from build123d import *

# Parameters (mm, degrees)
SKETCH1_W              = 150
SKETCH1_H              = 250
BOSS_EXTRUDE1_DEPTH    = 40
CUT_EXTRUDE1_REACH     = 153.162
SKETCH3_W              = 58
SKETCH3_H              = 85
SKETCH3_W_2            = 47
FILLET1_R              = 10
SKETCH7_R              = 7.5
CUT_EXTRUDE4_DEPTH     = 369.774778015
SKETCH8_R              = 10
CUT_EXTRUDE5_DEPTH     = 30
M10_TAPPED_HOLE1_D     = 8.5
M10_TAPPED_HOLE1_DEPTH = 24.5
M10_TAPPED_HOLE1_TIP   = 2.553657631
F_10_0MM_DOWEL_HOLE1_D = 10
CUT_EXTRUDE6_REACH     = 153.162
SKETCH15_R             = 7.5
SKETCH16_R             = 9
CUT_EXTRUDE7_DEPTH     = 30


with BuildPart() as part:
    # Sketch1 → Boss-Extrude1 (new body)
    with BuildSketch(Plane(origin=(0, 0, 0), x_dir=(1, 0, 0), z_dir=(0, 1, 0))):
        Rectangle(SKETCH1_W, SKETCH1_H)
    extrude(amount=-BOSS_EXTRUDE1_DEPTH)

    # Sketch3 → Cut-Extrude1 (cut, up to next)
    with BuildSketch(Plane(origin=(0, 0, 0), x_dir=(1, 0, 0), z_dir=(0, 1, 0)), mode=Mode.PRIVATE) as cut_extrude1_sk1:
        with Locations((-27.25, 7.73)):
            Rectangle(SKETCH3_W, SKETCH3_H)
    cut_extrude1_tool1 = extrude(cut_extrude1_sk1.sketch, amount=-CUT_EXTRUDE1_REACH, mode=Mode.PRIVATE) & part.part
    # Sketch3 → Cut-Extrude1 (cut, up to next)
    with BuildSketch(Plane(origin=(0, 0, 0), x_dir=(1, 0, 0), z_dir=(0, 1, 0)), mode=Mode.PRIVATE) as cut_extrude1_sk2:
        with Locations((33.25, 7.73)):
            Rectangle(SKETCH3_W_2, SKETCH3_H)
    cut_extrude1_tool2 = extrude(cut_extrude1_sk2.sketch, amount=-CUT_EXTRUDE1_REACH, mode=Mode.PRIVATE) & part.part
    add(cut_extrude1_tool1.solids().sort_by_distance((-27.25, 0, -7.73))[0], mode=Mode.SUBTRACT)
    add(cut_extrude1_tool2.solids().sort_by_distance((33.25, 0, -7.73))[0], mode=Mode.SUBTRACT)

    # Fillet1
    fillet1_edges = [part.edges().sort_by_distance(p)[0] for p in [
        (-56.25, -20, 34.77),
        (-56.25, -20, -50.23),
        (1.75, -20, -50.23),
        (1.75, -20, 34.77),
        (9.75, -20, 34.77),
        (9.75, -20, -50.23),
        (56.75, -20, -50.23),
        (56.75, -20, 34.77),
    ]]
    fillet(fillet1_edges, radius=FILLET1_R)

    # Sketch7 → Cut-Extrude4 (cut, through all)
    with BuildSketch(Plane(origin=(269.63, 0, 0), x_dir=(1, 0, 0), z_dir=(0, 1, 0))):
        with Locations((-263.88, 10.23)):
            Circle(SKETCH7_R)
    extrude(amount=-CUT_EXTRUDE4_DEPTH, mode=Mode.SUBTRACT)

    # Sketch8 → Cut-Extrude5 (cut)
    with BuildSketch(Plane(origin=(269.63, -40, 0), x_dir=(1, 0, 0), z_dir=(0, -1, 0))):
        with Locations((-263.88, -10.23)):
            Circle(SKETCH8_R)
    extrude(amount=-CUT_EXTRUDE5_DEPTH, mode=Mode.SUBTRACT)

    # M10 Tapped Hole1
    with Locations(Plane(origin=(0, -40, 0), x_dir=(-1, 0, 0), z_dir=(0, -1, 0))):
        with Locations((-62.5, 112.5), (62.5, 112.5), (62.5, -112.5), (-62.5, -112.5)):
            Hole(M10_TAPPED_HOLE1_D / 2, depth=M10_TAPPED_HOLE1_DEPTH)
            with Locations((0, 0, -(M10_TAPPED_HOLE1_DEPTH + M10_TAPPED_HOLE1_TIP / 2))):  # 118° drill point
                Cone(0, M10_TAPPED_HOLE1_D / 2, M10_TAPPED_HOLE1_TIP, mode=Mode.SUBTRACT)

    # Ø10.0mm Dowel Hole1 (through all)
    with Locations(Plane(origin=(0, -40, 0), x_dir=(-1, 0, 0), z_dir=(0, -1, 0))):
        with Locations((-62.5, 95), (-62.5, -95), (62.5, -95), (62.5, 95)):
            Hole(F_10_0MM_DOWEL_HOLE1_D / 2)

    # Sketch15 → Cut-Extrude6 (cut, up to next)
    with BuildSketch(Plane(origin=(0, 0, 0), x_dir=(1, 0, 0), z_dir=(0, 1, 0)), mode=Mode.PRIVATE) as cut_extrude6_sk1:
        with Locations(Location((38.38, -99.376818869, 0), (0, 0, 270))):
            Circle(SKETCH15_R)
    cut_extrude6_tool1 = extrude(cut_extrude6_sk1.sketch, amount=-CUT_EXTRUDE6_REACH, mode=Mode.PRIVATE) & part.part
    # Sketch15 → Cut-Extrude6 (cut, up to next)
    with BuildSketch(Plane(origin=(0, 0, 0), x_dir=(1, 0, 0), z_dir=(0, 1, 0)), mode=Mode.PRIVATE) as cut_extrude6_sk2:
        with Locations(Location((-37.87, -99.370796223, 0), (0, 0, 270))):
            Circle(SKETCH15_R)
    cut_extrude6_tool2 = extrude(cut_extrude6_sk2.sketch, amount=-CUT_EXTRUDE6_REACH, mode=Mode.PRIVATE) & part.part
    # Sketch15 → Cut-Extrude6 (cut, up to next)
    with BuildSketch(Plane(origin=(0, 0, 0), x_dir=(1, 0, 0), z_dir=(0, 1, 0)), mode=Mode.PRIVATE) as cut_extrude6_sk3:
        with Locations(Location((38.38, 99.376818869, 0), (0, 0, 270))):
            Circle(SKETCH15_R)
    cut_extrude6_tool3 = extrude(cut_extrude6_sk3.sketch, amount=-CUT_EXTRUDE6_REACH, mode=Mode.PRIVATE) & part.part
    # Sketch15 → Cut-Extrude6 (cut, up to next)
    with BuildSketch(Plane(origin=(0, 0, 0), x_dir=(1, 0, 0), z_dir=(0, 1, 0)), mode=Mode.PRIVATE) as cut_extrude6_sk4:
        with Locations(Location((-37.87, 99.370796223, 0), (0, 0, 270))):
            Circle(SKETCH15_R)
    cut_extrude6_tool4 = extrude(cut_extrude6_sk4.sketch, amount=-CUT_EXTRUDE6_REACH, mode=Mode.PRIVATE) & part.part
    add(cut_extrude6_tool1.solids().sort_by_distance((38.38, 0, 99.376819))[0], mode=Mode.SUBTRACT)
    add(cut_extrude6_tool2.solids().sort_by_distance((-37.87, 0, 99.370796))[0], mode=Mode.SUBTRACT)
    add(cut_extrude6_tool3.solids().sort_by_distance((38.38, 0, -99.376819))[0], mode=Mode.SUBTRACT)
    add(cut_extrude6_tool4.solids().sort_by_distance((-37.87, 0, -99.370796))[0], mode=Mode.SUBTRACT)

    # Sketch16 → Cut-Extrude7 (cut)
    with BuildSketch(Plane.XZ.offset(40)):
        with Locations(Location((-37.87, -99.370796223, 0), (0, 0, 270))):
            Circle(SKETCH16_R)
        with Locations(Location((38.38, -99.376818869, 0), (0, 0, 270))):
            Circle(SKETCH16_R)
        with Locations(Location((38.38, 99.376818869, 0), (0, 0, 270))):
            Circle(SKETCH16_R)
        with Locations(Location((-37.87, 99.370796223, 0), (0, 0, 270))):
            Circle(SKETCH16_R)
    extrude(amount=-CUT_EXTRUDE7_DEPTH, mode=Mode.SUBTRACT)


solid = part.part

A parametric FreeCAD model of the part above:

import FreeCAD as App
import Part
import Sketcher
from FreeCAD import Vector


def edges_at(feature, points):
    """Names of the edges that pass closest to the given points."""
    edges = feature.Shape.Edges
    near = lambda p: min(range(len(edges)), key=lambda i: edges[i].distToShape(Part.Vertex(*p))[0])
    return sorted({f"Edge{near(p) + 1}" for p in points})

doc = App.newDocument("Part")
body = doc.addObject("PartDesign::Body", "Body")

# Sketch on XZ plane
sketch1 = body.newObject("Sketcher::SketchObject", "Sketch")
sketch1.AttachmentSupport = (doc.getObject("XZ_Plane"), [""])
sketch1.MapMode = "FlatFace"
sketch1.addGeometry([
    Part.LineSegment(Vector(-75, -125, 0), Vector(-75, 125, 0)),
    Part.LineSegment(Vector(-75, 125, 0), Vector(75, 125, 0)),
    Part.LineSegment(Vector(75, 125, 0), Vector(75, -125, 0)),
    Part.LineSegment(Vector(75, -125, 0), Vector(-75, -125, 0)),
], False)
sketch1.addConstraint([
    Sketcher.Constraint("Coincident", 0, 2, 1, 1),
    Sketcher.Constraint("Coincident", 1, 2, 2, 1),
    Sketcher.Constraint("Coincident", 2, 2, 3, 1),
    Sketcher.Constraint("Coincident", 3, 2, 0, 1),
    Sketcher.Constraint("Vertical", 0),
    Sketcher.Constraint("Horizontal", 1),
    Sketcher.Constraint("Vertical", 2),
    Sketcher.Constraint("Horizontal", 3),
    Sketcher.Constraint("Symmetric", 0, 2, 2, 2, -1, 1),
    Sketcher.Constraint("DistanceX", 1, 1, 1, 2, 150.0),
    Sketcher.Constraint("DistanceY", 0, 1, 0, 2, 250.0),
])
pad1 = body.newObject("PartDesign::Pad", "Pad")
pad1.Profile = sketch1
pad1.Length = 40

# Sketch on XZ plane
sketch2 = body.newObject("Sketcher::SketchObject", "Sketch001")
sketch2.AttachmentSupport = (doc.getObject("XZ_Plane"), [""])
sketch2.MapMode = "FlatFace"
sketch2.addGeometry([
    Part.LineSegment(Vector(-56, -50, 0), Vector(-56, 35, 0)),
    Part.LineSegment(Vector(-56, 35, 0), Vector(2, 35, 0)),
    Part.LineSegment(Vector(2, 35, 0), Vector(2, -50, 0)),
    Part.LineSegment(Vector(2, -50, 0), Vector(-56, -50, 0)),
], False)
sketch2.addConstraint([
    Sketcher.Constraint("Coincident", 0, 2, 1, 1),
    Sketcher.Constraint("Coincident", 1, 2, 2, 1),
    Sketcher.Constraint("Coincident", 2, 2, 3, 1),
    Sketcher.Constraint("Coincident", 3, 2, 0, 1),
    Sketcher.Constraint("Vertical", 0),
    Sketcher.Constraint("Horizontal", 1),
    Sketcher.Constraint("Vertical", 2),
    Sketcher.Constraint("Horizontal", 3),
    Sketcher.Constraint("DistanceX", 1, 1, 1, 2, 58.0),
    Sketcher.Constraint("DistanceY", 0, 1, 0, 2, 85.0),
    Sketcher.Constraint("DistanceX", 0, 2, -1, 1, 56.25),
    Sketcher.Constraint("DistanceY", -1, 1, 0, 2, 34.77),
])
pocket1 = body.newObject("PartDesign::Pocket", "Pocket")
pocket1.Profile = sketch2
pocket1.Type = "UpToFirst"
pocket1.Reversed = True

# Sketch on XZ plane
sketch3 = body.newObject("Sketcher::SketchObject", "Sketch002")
sketch3.AttachmentSupport = (doc.getObject("XZ_Plane"), [""])
sketch3.MapMode = "FlatFace"
sketch3.addGeometry([
    Part.LineSegment(Vector(10, -50, 0), Vector(10, 35, 0)),
    Part.LineSegment(Vector(10, 35, 0), Vector(57, 35, 0)),
    Part.LineSegment(Vector(57, 35, 0), Vector(57, -50, 0)),
    Part.LineSegment(Vector(57, -50, 0), Vector(10, -50, 0)),
], False)
sketch3.addConstraint([
    Sketcher.Constraint("Coincident", 0, 2, 1, 1),
    Sketcher.Constraint("Coincident", 1, 2, 2, 1),
    Sketcher.Constraint("Coincident", 2, 2, 3, 1),
    Sketcher.Constraint("Coincident", 3, 2, 0, 1),
    Sketcher.Constraint("Vertical", 0),
    Sketcher.Constraint("Horizontal", 1),
    Sketcher.Constraint("Vertical", 2),
    Sketcher.Constraint("Horizontal", 3),
    Sketcher.Constraint("DistanceX", 1, 1, 1, 2, 47.0),
    Sketcher.Constraint("DistanceY", 0, 1, 0, 2, 85.0),
    Sketcher.Constraint("DistanceX", -1, 1, 0, 2, 9.75),
    Sketcher.Constraint("DistanceY", -1, 1, 0, 2, 34.77),
])
pocket2 = body.newObject("PartDesign::Pocket", "Pocket001")
pocket2.Profile = sketch3
pocket2.Type = "UpToFirst"
pocket2.Reversed = True
doc.recompute()

fillet = body.newObject("PartDesign::Fillet", "Fillet")
fillet.Base = (pocket2, edges_at(pocket2, [
    (-56.25, -20, 34.77),
    (-56.25, -20, -50.23),
    (1.75, -20, -50.23),
    (1.75, -20, 34.77),
    (9.75, -20, 34.77),
    (9.75, -20, -50.23),
    (56.75, -20, -50.23),
    (56.75, -20, 34.77),
]))
fillet.Radius = 10

# Sketch on XZ plane
sketch4 = body.newObject("Sketcher::SketchObject", "Sketch003")
sketch4.AttachmentSupport = (doc.getObject("XZ_Plane"), [""])
sketch4.MapMode = "FlatFace"
sketch4.addGeometry(Part.Circle(Vector(6, -10, 0), Vector(0, 0, 1), 8), False)
sketch4.addConstraint([
    Sketcher.Constraint("Diameter", 0, 15.0),
    Sketcher.Constraint("DistanceX", -1, 1, 0, 3, 5.75),
    Sketcher.Constraint("DistanceY", 0, 3, -1, 1, 10.23),
])
pocket3 = body.newObject("PartDesign::Pocket", "Pocket002")
pocket3.Profile = sketch4
pocket3.Type = "ThroughAll"
pocket3.Reversed = True

# Sketch on XZ plane
sketch5 = body.newObject("Sketcher::SketchObject", "Sketch004")
sketch5.AttachmentSupport = (doc.getObject("XZ_Plane"), [""])
sketch5.MapMode = "FlatFace"
sketch5.AttachmentOffset = App.Placement(Vector(0, 0, 40), App.Rotation())
sketch5.addGeometry(Part.Circle(Vector(6, -10, 0), Vector(0, 0, 1), 10), False)
sketch5.addConstraint([
    Sketcher.Constraint("Diameter", 0, 20.0),
    Sketcher.Constraint("DistanceX", -1, 1, 0, 3, 5.75),
    Sketcher.Constraint("DistanceY", 0, 3, -1, 1, 10.23),
])
pocket4 = body.newObject("PartDesign::Pocket", "Pocket003")
pocket4.Profile = sketch5
pocket4.Length = 30

# Sketch on XZ plane
sketch6 = body.newObject("Sketcher::SketchObject", "Sketch005")
sketch6.AttachmentSupport = (doc.getObject("XZ_Plane"), [""])
sketch6.MapMode = "FlatFace"
sketch6.AttachmentOffset = App.Placement(Vector(0, 0, 40), App.Rotation())
sketch6.addGeometry([
    Part.Circle(Vector(62.5, -112.5, 0), Vector(0, 0, 1), 4.2),
    Part.Circle(Vector(-62.5, -112.5, 0), Vector(0, 0, 1), 4.2),
    Part.Circle(Vector(-62.5, 112.5, 0), Vector(0, 0, 1), 4.2),
    Part.Circle(Vector(62.5, 112.5, 0), Vector(0, 0, 1), 4.2),
], False)
sketch6.addConstraint([
    Sketcher.Constraint("Equal", 0, 1),
    Sketcher.Constraint("Equal", 1, 2),
    Sketcher.Constraint("Equal", 2, 3),
    Sketcher.Constraint("Symmetric", 0, 3, 2, 3, -1, 1),
    Sketcher.Constraint("Symmetric", 1, 3, 3, 3, -1, 1),
    Sketcher.Constraint("Symmetric", 0, 3, 1, 3, -2),
    Sketcher.Constraint("Diameter", 0, 8.5),
    Sketcher.Constraint("DistanceX", 1, 3, 0, 3, 125.0),
    Sketcher.Constraint("DistanceY", 1, 3, 2, 3, 225.0),
])
doc.recompute()
hole = body.newObject("PartDesign::Hole", "Hole")
hole.Profile = sketch6
hole.ThreadType = "None"
hole.Diameter = 8.5
hole.DepthType = "Dimension"
hole.Depth = 24.5
hole.DrillPoint = "Angled"
hole.DrillPointAngle = 118

# Sketch on XZ plane
sketch7 = body.newObject("Sketcher::SketchObject", "Sketch006")
sketch7.AttachmentSupport = (doc.getObject("XZ_Plane"), [""])
sketch7.MapMode = "FlatFace"
sketch7.AttachmentOffset = App.Placement(Vector(0, 0, 40), App.Rotation())
sketch7.addGeometry([
    Part.Circle(Vector(62, -95, 0), Vector(0, 0, 1), 5),
    Part.Circle(Vector(62, 95, 0), Vector(0, 0, 1), 5),
    Part.Circle(Vector(-62, 95, 0), Vector(0, 0, 1), 5),
    Part.Circle(Vector(-62, -95, 0), Vector(0, 0, 1), 5),
], False)
sketch7.addConstraint([
    Sketcher.Constraint("Equal", 0, 1),
    Sketcher.Constraint("Equal", 1, 2),
    Sketcher.Constraint("Equal", 2, 3),
    Sketcher.Constraint("Symmetric", 0, 3, 2, 3, -1, 1),
    Sketcher.Constraint("Symmetric", 1, 3, 3, 3, -1, 1),
    Sketcher.Constraint("Symmetric", 1, 3, 2, 3, -2),
    Sketcher.Constraint("Diameter", 0, 10.0),
    Sketcher.Constraint("DistanceY", 0, 3, -1, 1, 95.0),
    Sketcher.Constraint("DistanceX", 2, 3, 1, 3, 125.0),
])
doc.recompute()
hole2 = body.newObject("PartDesign::Hole", "Hole001")
hole2.Profile = sketch7
hole2.ThreadType = "None"
hole2.Diameter = 10
hole2.DepthType = "ThroughAll"

# Sketch on XZ plane
sketch8 = body.newObject("Sketcher::SketchObject", "Sketch007")
sketch8.AttachmentSupport = (doc.getObject("XZ_Plane"), [""])
sketch8.MapMode = "FlatFace"
sketch8.addGeometry(Part.Circle(Vector(38, 99, 0), Vector(0, 0, 1), 8), False)
sketch8.addConstraint([
    Sketcher.Constraint("Diameter", 0, 15.0),
    Sketcher.Constraint("DistanceX", -1, 1, 0, 3, 38.38),
    Sketcher.Constraint("DistanceY", -1, 1, 0, 3, 99.376819),
])
pocket5 = body.newObject("PartDesign::Pocket", "Pocket004")
pocket5.Profile = sketch8
pocket5.Type = "UpToFirst"
pocket5.Reversed = True

# Sketch on XZ plane
sketch9 = body.newObject("Sketcher::SketchObject", "Sketch008")
sketch9.AttachmentSupport = (doc.getObject("XZ_Plane"), [""])
sketch9.MapMode = "FlatFace"
sketch9.addGeometry(Part.Circle(Vector(-38, 99, 0), Vector(0, 0, 1), 8), False)
sketch9.addConstraint([
    Sketcher.Constraint("Diameter", 0, 15.0),
    Sketcher.Constraint("DistanceX", 0, 3, -1, 1, 37.87),
    Sketcher.Constraint("DistanceY", -1, 1, 0, 3, 99.370796),
])
pocket6 = body.newObject("PartDesign::Pocket", "Pocket005")
pocket6.Profile = sketch9
pocket6.Type = "UpToFirst"
pocket6.Reversed = True

# Sketch on XZ plane
sketch10 = body.newObject("Sketcher::SketchObject", "Sketch009")
sketch10.AttachmentSupport = (doc.getObject("XZ_Plane"), [""])
sketch10.MapMode = "FlatFace"
sketch10.addGeometry(Part.Circle(Vector(38, -99, 0), Vector(0, 0, 1), 8), False)
sketch10.addConstraint([
    Sketcher.Constraint("Diameter", 0, 15.0),
    Sketcher.Constraint("DistanceX", -1, 1, 0, 3, 38.38),
    Sketcher.Constraint("DistanceY", 0, 3, -1, 1, 99.376819),
])
pocket7 = body.newObject("PartDesign::Pocket", "Pocket006")
pocket7.Profile = sketch10
pocket7.Type = "UpToFirst"
pocket7.Reversed = True

# Sketch on XZ plane
sketch11 = body.newObject("Sketcher::SketchObject", "Sketch010")
sketch11.AttachmentSupport = (doc.getObject("XZ_Plane"), [""])
sketch11.MapMode = "FlatFace"
sketch11.addGeometry(Part.Circle(Vector(-38, -99, 0), Vector(0, 0, 1), 8), False)
sketch11.addConstraint([
    Sketcher.Constraint("Diameter", 0, 15.0),
    Sketcher.Constraint("DistanceX", 0, 3, -1, 1, 37.87),
    Sketcher.Constraint("DistanceY", 0, 3, -1, 1, 99.370796),
])
pocket8 = body.newObject("PartDesign::Pocket", "Pocket007")
pocket8.Profile = sketch11
pocket8.Type = "UpToFirst"
pocket8.Reversed = True

# Sketch on XZ plane
sketch12 = body.newObject("Sketcher::SketchObject", "Sketch011")
sketch12.AttachmentSupport = (doc.getObject("XZ_Plane"), [""])
sketch12.MapMode = "FlatFace"
sketch12.AttachmentOffset = App.Placement(Vector(0, 0, 40), App.Rotation())
sketch12.addGeometry([
    Part.Circle(Vector(-38, -99, 0), Vector(0, 0, 1), 9),
    Part.Circle(Vector(38, -99, 0), Vector(0, 0, 1), 9),
    Part.Circle(Vector(38, 99, 0), Vector(0, 0, 1), 9),
    Part.Circle(Vector(-38, 99, 0), Vector(0, 0, 1), 9),
], False)
sketch12.addConstraint([
    Sketcher.Constraint("Equal", 0, 1),
    Sketcher.Constraint("Equal", 1, 2),
    Sketcher.Constraint("Equal", 2, 3),
    Sketcher.Constraint("Symmetric", 1, 3, 2, 3, -1),
    Sketcher.Constraint("Symmetric", 0, 3, 3, 3, -1),
    Sketcher.Constraint("Diameter", 0, 18.0),
    Sketcher.Constraint("DistanceX", 0, 3, -1, 1, 37.87),
    Sketcher.Constraint("DistanceX", -1, 1, 1, 3, 38.38),
    Sketcher.Constraint("DistanceY", 1, 3, -1, 1, 99.376819),
    Sketcher.Constraint("DistanceY", 0, 3, -1, 1, 99.370796),
])
pocket9 = body.newObject("PartDesign::Pocket", "Pocket008")
pocket9.Profile = sketch12
pocket9.Length = 30

doc.recompute()
